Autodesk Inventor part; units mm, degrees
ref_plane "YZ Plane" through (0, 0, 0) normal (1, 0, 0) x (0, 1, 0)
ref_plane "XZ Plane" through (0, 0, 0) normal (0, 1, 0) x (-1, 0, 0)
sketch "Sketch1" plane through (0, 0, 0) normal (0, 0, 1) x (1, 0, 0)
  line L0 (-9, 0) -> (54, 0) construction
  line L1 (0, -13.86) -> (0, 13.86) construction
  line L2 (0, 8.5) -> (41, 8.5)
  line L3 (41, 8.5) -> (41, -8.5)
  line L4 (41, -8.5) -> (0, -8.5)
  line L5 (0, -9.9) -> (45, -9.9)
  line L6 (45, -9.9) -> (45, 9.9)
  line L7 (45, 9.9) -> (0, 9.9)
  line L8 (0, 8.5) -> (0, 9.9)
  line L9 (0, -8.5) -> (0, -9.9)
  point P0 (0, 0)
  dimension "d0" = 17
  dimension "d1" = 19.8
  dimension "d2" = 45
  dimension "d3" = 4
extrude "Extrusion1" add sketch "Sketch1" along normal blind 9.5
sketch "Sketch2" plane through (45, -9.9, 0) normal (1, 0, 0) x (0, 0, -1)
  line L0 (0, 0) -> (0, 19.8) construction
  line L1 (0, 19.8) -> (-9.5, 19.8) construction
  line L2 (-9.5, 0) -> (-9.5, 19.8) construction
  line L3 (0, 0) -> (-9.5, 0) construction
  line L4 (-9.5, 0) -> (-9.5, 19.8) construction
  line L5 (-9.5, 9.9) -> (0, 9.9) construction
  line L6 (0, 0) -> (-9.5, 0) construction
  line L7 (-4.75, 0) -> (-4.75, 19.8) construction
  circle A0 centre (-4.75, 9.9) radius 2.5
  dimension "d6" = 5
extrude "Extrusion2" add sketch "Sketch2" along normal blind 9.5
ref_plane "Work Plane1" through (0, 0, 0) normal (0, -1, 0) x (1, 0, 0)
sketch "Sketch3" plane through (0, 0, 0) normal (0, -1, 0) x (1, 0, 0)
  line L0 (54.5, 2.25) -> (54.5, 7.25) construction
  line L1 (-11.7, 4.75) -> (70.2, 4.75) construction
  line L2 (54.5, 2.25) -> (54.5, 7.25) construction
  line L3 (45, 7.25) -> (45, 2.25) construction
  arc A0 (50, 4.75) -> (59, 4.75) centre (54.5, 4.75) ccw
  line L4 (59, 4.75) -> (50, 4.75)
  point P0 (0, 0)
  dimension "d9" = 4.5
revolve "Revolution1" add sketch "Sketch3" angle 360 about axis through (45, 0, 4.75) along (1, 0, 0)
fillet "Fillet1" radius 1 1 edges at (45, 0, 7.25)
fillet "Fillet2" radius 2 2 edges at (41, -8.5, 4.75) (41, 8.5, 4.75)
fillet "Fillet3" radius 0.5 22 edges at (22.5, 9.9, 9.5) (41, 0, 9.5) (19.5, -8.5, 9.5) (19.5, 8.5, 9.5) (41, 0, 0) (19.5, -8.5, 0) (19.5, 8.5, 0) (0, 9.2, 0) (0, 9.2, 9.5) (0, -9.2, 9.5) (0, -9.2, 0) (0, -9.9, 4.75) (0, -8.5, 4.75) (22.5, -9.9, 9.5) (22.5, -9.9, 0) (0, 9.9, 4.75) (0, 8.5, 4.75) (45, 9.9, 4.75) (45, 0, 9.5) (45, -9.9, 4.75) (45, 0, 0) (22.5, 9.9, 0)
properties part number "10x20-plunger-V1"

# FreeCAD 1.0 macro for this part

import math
import FreeCAD as App
import Part
import Sketcher
from FreeCAD import Vector


def edges_at(feature, points):
    """Names of the edges that pass closest to the given points."""
    edges = feature.Shape.Edges
    near = lambda p: min(range(len(edges)), key=lambda i: edges[i].distToShape(Part.Vertex(*p))[0])
    return sorted({f"Edge{near(p) + 1}" for p in points})

doc = App.newDocument("Part")
params = doc.addObject("Spreadsheet::Sheet", "Params")
for row, (alias, value) in enumerate([
    ("sketch1_width", "45 mm"),
    ("sketch1_height", "17 mm"),
    ("sketch1_height2", "19.8 mm"),
    ("pad1_length", "9.5 mm"),
    ("sketch2_diameter", "5 mm"),
    ("pad2_length", "9.5 mm"),
    ("sketch3_radius", "4.5 mm"),
    ("revolution_angle", "360 deg"),
    ("fillet_radius", "1 mm"),
    ("fillet2_radius", "2 mm"),
    ("fillet3_radius", "0.5 mm"),
], start=1):
    params.set(f"A{row}", alias)
    params.set(f"B{row}", "=" + value)
    params.setAlias(f"B{row}", alias)

body = doc.addObject("PartDesign::Body", "Body")

sketch1 = body.newObject("Sketcher::SketchObject", "Sketch")
sketch1.AttachmentSupport = (doc.getObject("XY_Plane"), [""])
sketch1.MapMode = "FlatFace"
sketch1.addGeometry([
    Part.LineSegment(Vector(0, 9.9, 0), Vector(0, 8.5, 0)),
    Part.LineSegment(Vector(0, 8.5, 0), Vector(41, 8.5, 0)),
    Part.LineSegment(Vector(41, 8.5, 0), Vector(41, -8.5, 0)),
    Part.LineSegment(Vector(41, -8.5, 0), Vector(0, -8.5, 0)),
    Part.LineSegment(Vector(0, -8.5, 0), Vector(0, -9.9, 0)),
    Part.LineSegment(Vector(0, -9.9, 0), Vector(45, -9.9, 0)),
    Part.LineSegment(Vector(45, -9.9, 0), Vector(45, 9.9, 0)),
    Part.LineSegment(Vector(45, 9.9, 0), Vector(0, 9.9, 0)),
], False)
sketch1.addConstraint([
    Sketcher.Constraint("Coincident", 0, 2, 1, 1),
    Sketcher.Constraint("Coincident", 1, 2, 2, 1),
    Sketcher.Constraint("Coincident", 2, 2, 3, 1),
    Sketcher.Constraint("Coincident", 3, 2, 4, 1),
    Sketcher.Constraint("Coincident", 4, 2, 5, 1),
    Sketcher.Constraint("Coincident", 5, 2, 6, 1),
    Sketcher.Constraint("Coincident", 6, 2, 7, 1),
    Sketcher.Constraint("Coincident", 7, 2, 0, 1),
    Sketcher.Constraint("Vertical", 0),
    Sketcher.Constraint("Horizontal", 1),
    Sketcher.Constraint("Vertical", 2),
    Sketcher.Constraint("Horizontal", 3),
    Sketcher.Constraint("Vertical", 4),
    Sketcher.Constraint("Horizontal", 5),
    Sketcher.Constraint("Vertical", 6),
    Sketcher.Constraint("Horizontal", 7),
    Sketcher.Constraint("Symmetric", 0, 2, 3, 2, -1, 1),
    Sketcher.Constraint("Symmetric", 4, 2, 7, 2, -1),
    Sketcher.Constraint("DistanceX", 5, 1, 5, 2, 45.0),
    Sketcher.Constraint("DistanceY", 2, 2, 2, 1, 17.0),
    Sketcher.Constraint("DistanceY", 6, 1, 6, 2, 19.8),
    Sketcher.Constraint("DistanceX", 2, 2, 5, 2, 4.0),
])
sketch1.setExpression("Constraints[18]", "Params.sketch1_width")
sketch1.setExpression("Constraints[19]", "Params.sketch1_height")
sketch1.setExpression("Constraints[20]", "Params.sketch1_height2")
pad1 = body.newObject("PartDesign::Pad", "Pad")
pad1.Profile = sketch1
pad1.setExpression("Length", "Params.pad1_length")

sketch2 = body.newObject("Sketcher::SketchObject", "Sketch001")
sketch2.AttachmentSupport = (doc.getObject("YZ_Plane"), [""])
sketch2.MapMode = "FlatFace"
sketch2.AttachmentOffset = App.Placement(Vector(0, 0, 45), App.Rotation())
sketch2.addGeometry(Part.Circle(Vector(0, 4.8, 0), Vector(0, 0, 1), 2.5), False)
sketch2.addConstraint([
    Sketcher.Constraint("PointOnObject", 0, 3, -2),
    Sketcher.Constraint("Diameter", 0, 5.0),
    Sketcher.Constraint("DistanceY", -1, 1, 0, 3, 4.75),
])
sketch2.setExpression("Constraints[1]", "Params.sketch2_diameter")
pad2 = body.newObject("PartDesign::Pad", "Pad001")
pad2.Profile = sketch2
pad2.setExpression("Length", "Params.pad2_length")

sketch3 = body.newObject("Sketcher::SketchObject", "Sketch002")
sketch3.AttachmentSupport = (doc.getObject("XZ_Plane"), [""])
sketch3.MapMode = "FlatFace"
sketch3.addGeometry([
    Part.LineSegment(Vector(59, 4.8, 0), Vector(50, 4.8, 0)),
    Part.ArcOfCircle(Part.Circle(Vector(54.5, 4.8, 0), Vector(0, 0, 1), 4.5), math.radians(180), math.radians(360)),
], False)
sketch3.addGeometry(Part.LineSegment(Vector(50, 4.8, 0), Vector(59, 4.8, 0)), True)
sketch3.addConstraint([
    Sketcher.Constraint("Coincident", 0, 1, 1, 2),
    Sketcher.Constraint("Coincident", 1, 1, 0, 2),
    Sketcher.Constraint("Horizontal", 0),
    Sketcher.Constraint("Horizontal", 2),
    Sketcher.Constraint("Coincident", 2, 1, 1, 1),
    Sketcher.Constraint("Horizontal", 1, 3, 0, 1),
    Sketcher.Constraint("Equal", 0, 2),
    Sketcher.Constraint("Radius", 1, 4.5),
    Sketcher.Constraint("DistanceX", -1, 1, 0, 1, 59.0),
    Sketcher.Constraint("DistanceY", -1, 1, 1, 3, 4.75),
])
sketch3.setExpression("Constraints[7]", "Params.sketch3_radius")
revolution = body.newObject("PartDesign::Revolution", "Revolution")
revolution.Profile = sketch3
revolution.ReferenceAxis = (sketch3, ["Axis0"])
revolution.setExpression("Angle", "Params.revolution_angle")
doc.recompute()

fillet = body.newObject("PartDesign::Fillet", "Fillet")
fillet.Base = (revolution, edges_at(revolution, [(45, 0, 7.25)]))
fillet.setExpression("Radius", "Params.fillet_radius")
doc.recompute()

fillet2 = body.newObject("PartDesign::Fillet", "Fillet001")
fillet2.Base = (fillet, edges_at(fillet, [(41, -8.5, 4.75), (41, 8.5, 4.75)]))
fillet2.setExpression("Radius", "Params.fillet2_radius")
doc.recompute()

fillet3 = body.newObject("PartDesign::Fillet", "Fillet002")
fillet3.Base = (fillet2, edges_at(fillet2, [
    (22.5, 9.9, 9.5),
    (41, 0, 9.5),
    (19.5, -8.5, 9.5),
    (19.5, 8.5, 9.5),
    (41, 0, 0),
    (19.5, -8.5, 0),
    (19.5, 8.5, 0),
    (0, 9.2, 0),
    (0, 9.2, 9.5),
    (0, -9.2, 9.5),
    (0, -9.2, 0),
    (0, -9.9, 4.75),
    (0, -8.5, 4.75),
    (22.5, -9.9, 9.5),
    (22.5, -9.9, 0),
    (0, 9.9, 4.75),
    (0, 8.5, 4.75),
    (45, 9.9, 4.75),
    (45, 0, 9.5),
    (45, -9.9, 4.75),
    (45, 0, 0),
    (22.5, 9.9, 0),
]))
fillet3.setExpression("Radius", "Params.fillet3_radius")

doc.recompute()
